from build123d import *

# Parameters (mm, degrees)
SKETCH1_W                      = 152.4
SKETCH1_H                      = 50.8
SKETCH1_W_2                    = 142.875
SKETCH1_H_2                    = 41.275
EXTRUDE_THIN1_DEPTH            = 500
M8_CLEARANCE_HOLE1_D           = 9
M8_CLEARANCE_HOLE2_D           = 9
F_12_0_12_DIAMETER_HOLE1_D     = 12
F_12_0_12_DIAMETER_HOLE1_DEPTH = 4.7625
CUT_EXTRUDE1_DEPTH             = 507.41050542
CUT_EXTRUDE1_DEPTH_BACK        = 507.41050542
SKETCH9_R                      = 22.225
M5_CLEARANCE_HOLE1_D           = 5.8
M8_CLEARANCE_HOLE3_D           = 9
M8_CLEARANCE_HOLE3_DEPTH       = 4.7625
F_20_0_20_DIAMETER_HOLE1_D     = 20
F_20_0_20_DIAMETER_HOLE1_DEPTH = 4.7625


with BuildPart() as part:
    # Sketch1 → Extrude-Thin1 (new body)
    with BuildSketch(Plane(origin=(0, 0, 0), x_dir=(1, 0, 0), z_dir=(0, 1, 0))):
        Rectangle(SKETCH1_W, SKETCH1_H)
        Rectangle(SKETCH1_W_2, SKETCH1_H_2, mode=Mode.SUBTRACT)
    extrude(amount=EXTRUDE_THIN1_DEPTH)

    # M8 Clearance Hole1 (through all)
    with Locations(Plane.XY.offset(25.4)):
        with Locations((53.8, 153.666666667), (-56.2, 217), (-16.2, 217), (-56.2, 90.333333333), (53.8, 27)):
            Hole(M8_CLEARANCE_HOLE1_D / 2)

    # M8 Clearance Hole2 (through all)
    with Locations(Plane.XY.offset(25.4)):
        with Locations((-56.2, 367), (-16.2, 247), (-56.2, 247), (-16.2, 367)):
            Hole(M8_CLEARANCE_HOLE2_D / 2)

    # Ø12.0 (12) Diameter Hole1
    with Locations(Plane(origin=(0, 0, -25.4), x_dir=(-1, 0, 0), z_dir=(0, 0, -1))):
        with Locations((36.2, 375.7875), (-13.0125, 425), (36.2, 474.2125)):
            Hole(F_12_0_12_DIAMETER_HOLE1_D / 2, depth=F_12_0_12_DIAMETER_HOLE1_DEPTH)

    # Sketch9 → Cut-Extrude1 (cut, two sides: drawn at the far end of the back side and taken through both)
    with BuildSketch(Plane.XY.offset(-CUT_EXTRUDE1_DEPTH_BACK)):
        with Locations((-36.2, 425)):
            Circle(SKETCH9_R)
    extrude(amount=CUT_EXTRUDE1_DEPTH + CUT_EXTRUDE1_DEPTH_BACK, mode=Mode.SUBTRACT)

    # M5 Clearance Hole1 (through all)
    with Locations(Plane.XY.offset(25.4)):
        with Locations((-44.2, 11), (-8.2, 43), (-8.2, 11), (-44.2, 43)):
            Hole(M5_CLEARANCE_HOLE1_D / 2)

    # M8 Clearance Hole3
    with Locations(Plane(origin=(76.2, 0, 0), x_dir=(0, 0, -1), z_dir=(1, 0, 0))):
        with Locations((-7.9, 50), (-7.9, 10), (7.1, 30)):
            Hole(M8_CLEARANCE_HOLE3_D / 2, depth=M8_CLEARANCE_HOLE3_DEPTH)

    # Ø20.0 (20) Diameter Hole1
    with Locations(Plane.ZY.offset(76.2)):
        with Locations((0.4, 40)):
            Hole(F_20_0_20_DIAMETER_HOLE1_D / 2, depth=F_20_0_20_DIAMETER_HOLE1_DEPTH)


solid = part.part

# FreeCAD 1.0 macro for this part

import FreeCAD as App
import Part
import Sketcher
Q = App.Units.Quantity


def add_polygon(sketch, points):
    """Adds a closed chain of lines whose ends are joined by coincident constraints."""
    first, n = sketch.GeometryCount, len(points)
    for a, b in zip(points, points[1:] + points[:1]):
        sketch.addGeometry(Part.LineSegment(App.Vector(*a, 0), App.Vector(*b, 0)), False)
    for i in range(n):
        sketch.addConstraint(Sketcher.Constraint("Coincident", first + i, 2, first + (i + 1) % n, 1))

doc = App.newDocument("Part")
body = doc.addObject("PartDesign::Body", "Body")

# Sketch on XZ plane
sketch1 = body.newObject("Sketcher::SketchObject", "Sketch")
sketch1.AttachmentSupport = (doc.getObject("XZ_Plane"), [""])
sketch1.MapMode = "FlatFace"
add_polygon(sketch1, [(-76.2, -25.4), (-76.2, 25.4), (76.2, 25.4), (76.2, -25.4)])  # lines 0-3
add_polygon(sketch1, [(71.4375, 20.6375), (-71.4375, 20.6375), (-71.4375, -20.6375), (71.4375, -20.6375)])  # lines 4-7
sketch1.addConstraint(Sketcher.Constraint("Vertical", 0))
sketch1.addConstraint(Sketcher.Constraint("Horizontal", 1))
sketch1.addConstraint(Sketcher.Constraint("Vertical", 2))
sketch1.addConstraint(Sketcher.Constraint("Horizontal", 3))
sketch1.addConstraint(Sketcher.Constraint("Horizontal", 4))
sketch1.addConstraint(Sketcher.Constraint("Vertical", 5))
sketch1.addConstraint(Sketcher.Constraint("Horizontal", 6))
sketch1.addConstraint(Sketcher.Constraint("Vertical", 7))
sketch1.addConstraint(Sketcher.Constraint("Symmetric", 0, 2, 2, 2, -1, 1))
sketch1.addConstraint(Sketcher.Constraint("Symmetric", 4, 2, 6, 2, -1, 1))
sketch1.addConstraint(Sketcher.Constraint("DistanceX", 1, 1, 1, 2, Q("6 in")))
sketch1.addConstraint(Sketcher.Constraint("DistanceY", 0, 1, 0, 2, Q("2 in")))
sketch1.addConstraint(Sketcher.Constraint("DistanceX", 4, 2, 4, 1, Q("5.625 in")))
sketch1.addConstraint(Sketcher.Constraint("DistanceY", 5, 2, 5, 1, Q("1.625 in")))
pad1 = body.newObject("PartDesign::Pad", "Pad")
pad1.Profile = sketch1
pad1.Length = 500
pad1.Reversed = True

# Sketch on XY plane
sketch2 = body.newObject("Sketcher::SketchObject", "Sketch001")
sketch2.AttachmentSupport = (doc.getObject("XY_Plane"), [""])
sketch2.MapMode = "FlatFace"
sketch2.AttachmentOffset = App.Placement(App.Vector(0, 0, 1 * 25.4), App.Rotation())
sketch2.addGeometry(Part.Circle(App.Vector(53.8, 153.666667, 0), App.Vector(0, 0, 1), 4.5), False)
sketch2.addGeometry(Part.Circle(App.Vector(-56.2, 217, 0), App.Vector(0, 0, 1), 4.5), False)
sketch2.addGeometry(Part.Circle(App.Vector(-16.2, 217, 0), App.Vector(0, 0, 1), 4.5), False)
sketch2.addGeometry(Part.Circle(App.Vector(-56.2, 90.333333, 0), App.Vector(0, 0, 1), 4.5), False)
sketch2.addGeometry(Part.Circle(App.Vector(53.8, 27, 0), App.Vector(0, 0, 1), 4.5), False)
sketch2.addConstraint(Sketcher.Constraint("Equal", 0, 1))
sketch2.addConstraint(Sketcher.Constraint("Equal", 1, 2))
sketch2.addConstraint(Sketcher.Constraint("Equal", 2, 3))
sketch2.addConstraint(Sketcher.Constraint("Equal", 3, 4))
sketch2.addConstraint(Sketcher.Constraint("Horizontal", 1, 3, 2, 3))
sketch2.addConstraint(Sketcher.Constraint("Vertical", 1, 3, 3, 3))
sketch2.addConstraint(Sketcher.Constraint("Vertical", 0, 3, 4, 3))
sketch2.addConstraint(Sketcher.Constraint("Diameter", 0, 9.0))
sketch2.addConstraint(Sketcher.Constraint("DistanceX", -1, 1, 0, 3, 53.8))
sketch2.addConstraint(Sketcher.Constraint("DistanceX", 1, 3, -1, 1, 56.2))
sketch2.addConstraint(Sketcher.Constraint("DistanceY", -1, 1, 1, 3, 217.0))
sketch2.addConstraint(Sketcher.Constraint("DistanceX", 2, 3, -1, 1, 16.2))
sketch2.addConstraint(Sketcher.Constraint("DistanceY", -1, 1, 4, 3, 27.0))
sketch2.addConstraint(Sketcher.Constraint("DistanceY", -1, 1, 0, 3, 153.666667))
sketch2.addConstraint(Sketcher.Constraint("DistanceY", -1, 1, 3, 3, 90.333333))
doc.recompute()
hole = body.newObject("PartDesign::Hole", "Hole")
hole.Profile = sketch2
hole.ThreadType = "None"
hole.Diameter = 9
hole.DepthType = "ThroughAll"

# Sketch on XY plane
sketch3 = body.newObject("Sketcher::SketchObject", "Sketch002")
sketch3.AttachmentSupport = (doc.getObject("XY_Plane"), [""])
sketch3.MapMode = "FlatFace"
sketch3.AttachmentOffset = App.Placement(App.Vector(0, 0, 1 * 25.4), App.Rotation())
sketch3.addGeometry(Part.Circle(App.Vector(-56.2, 367, 0), App.Vector(0, 0, 1), 4.5), False)
sketch3.addGeometry(Part.Circle(App.Vector(-16.2, 247, 0), App.Vector(0, 0, 1), 4.5), False)
sketch3.addGeometry(Part.Circle(App.Vector(-56.2, 247, 0), App.Vector(0, 0, 1), 4.5), False)
sketch3.addGeometry(Part.Circle(App.Vector(-16.2, 367, 0), App.Vector(0, 0, 1), 4.5), False)
sketch3.addConstraint(Sketcher.Constraint("Equal", 0, 1))
sketch3.addConstraint(Sketcher.Constraint("Equal", 1, 2))
sketch3.addConstraint(Sketcher.Constraint("Equal", 2, 3))
sketch3.addConstraint(Sketcher.Constraint("Horizontal", 1, 3, 2, 3))
sketch3.addConstraint(Sketcher.Constraint("Horizontal", 0, 3, 3, 3))
sketch3.addConstraint(Sketcher.Constraint("Vertical", 0, 3, 2, 3))
sketch3.addConstraint(Sketcher.Constraint("Vertical", 1, 3, 3, 3))
sketch3.addConstraint(Sketcher.Constraint("Diameter", 0, 9.0))
sketch3.addConstraint(Sketcher.Constraint("DistanceX", 0, 3, -1, 1, 56.2))
sketch3.addConstraint(Sketcher.Constraint("DistanceY", -1, 1, 0, 3, 367.0))
sketch3.addConstraint(Sketcher.Constraint("DistanceX", 1, 3, -1, 1, 16.2))
sketch3.addConstraint(Sketcher.Constraint("DistanceY", -1, 1, 1, 3, 247.0))
doc.recompute()
hole2 = body.newObject("PartDesign::Hole", "Hole001")
hole2.Profile = sketch3
hole2.ThreadType = "None"
hole2.Diameter = 9
hole2.DepthType = "ThroughAll"

# Sketch on XY plane
sketch4 = body.newObject("Sketcher::SketchObject", "Sketch003")
sketch4.AttachmentSupport = (doc.getObject("XY_Plane"), [""])
sketch4.MapMode = "FlatFace"
sketch4.AttachmentOffset = App.Placement(App.Vector(0, 0, -1 * 25.4), App.Rotation())
sketch4.addGeometry(Part.Circle(App.Vector(-36.2, 375.7875, 0), App.Vector(0, 0, 1), 6), False)
sketch4.addGeometry(Part.Circle(App.Vector(13.0125, 425, 0), App.Vector(0, 0, 1), 6), False)
sketch4.addGeometry(Part.Circle(App.Vector(-36.2, 474.2125, 0), App.Vector(0, 0, 1), 6), False)
sketch4.addConstraint(Sketcher.Constraint("Equal", 0, 1))
sketch4.addConstraint(Sketcher.Constraint("Equal", 1, 2))
sketch4.addConstraint(Sketcher.Constraint("Vertical", 0, 3, 2, 3))
sketch4.addConstraint(Sketcher.Constraint("Diameter", 0, 12.0))
sketch4.addConstraint(Sketcher.Constraint("DistanceX", 0, 3, 1, 3, Q("1.9375 in")))
sketch4.addConstraint(Sketcher.Constraint("DistanceY", 0, 3, 1, 3, Q("1.9375 in")))
sketch4.addConstraint(Sketcher.Constraint("DistanceY", 1, 3, 2, 3, Q("1.9375 in")))
sketch4.addConstraint(Sketcher.Constraint("DistanceX", 0, 3, -1, 1, 36.2))
sketch4.addConstraint(Sketcher.Constraint("DistanceY", -1, 1, 0, 3, 375.7875))
doc.recompute()
hole3 = body.newObject("PartDesign::Hole", "Hole002")
hole3.Profile = sketch4
hole3.ThreadType = "None"
hole3.Diameter = 12
hole3.DepthType = "Dimension"
hole3.Depth = Q("0.1875 in")
hole3.DrillPoint = "Flat"
hole3.Reversed = True

# Sketch on XY plane
sketch5 = body.newObject("Sketcher::SketchObject", "Sketch004")
sketch5.AttachmentSupport = (doc.getObject("XY_Plane"), [""])
sketch5.MapMode = "FlatFace"
sketch5.addGeometry(Part.Circle(App.Vector(-36.2, 425, 0), App.Vector(0, 0, 1), 22.225), False)
sketch5.addConstraint(Sketcher.Constraint("Diameter", 0, Q("1.75 in")))
sketch5.addConstraint(Sketcher.Constraint("DistanceX", 0, 3, -1, 1, 36.2))
sketch5.addConstraint(Sketcher.Constraint("DistanceY", -1, 1, 0, 3, 425.0))
pocket1 = body.newObject("PartDesign::Pocket", "Pocket")
pocket1.Profile = sketch5
pocket1.Type = "ThroughAll"
pocket1.Midplane = True

# Sketch on XY plane
sketch6 = body.newObject("Sketcher::SketchObject", "Sketch005")
sketch6.AttachmentSupport = (doc.getObject("XY_Plane"), [""])
sketch6.MapMode = "FlatFace"
sketch6.AttachmentOffset = App.Placement(App.Vector(0, 0, 1 * 25.4), App.Rotation())
sketch6.addGeometry(Part.Circle(App.Vector(-44.2, 11, 0), App.Vector(0, 0, 1), 2.9), False)
sketch6.addGeometry(Part.Circle(App.Vector(-8.2, 43, 0), App.Vector(0, 0, 1), 2.9), False)
sketch6.addGeometry(Part.Circle(App.Vector(-8.2, 11, 0), App.Vector(0, 0, 1), 2.9), False)
sketch6.addGeometry(Part.Circle(App.Vector(-44.2, 43, 0), App.Vector(0, 0, 1), 2.9), False)
sketch6.addConstraint(Sketcher.Constraint("Equal", 0, 1))
sketch6.addConstraint(Sketcher.Constraint("Equal", 1, 2))
sketch6.addConstraint(Sketcher.Constraint("Equal", 2, 3))
sketch6.addConstraint(Sketcher.Constraint("Horizontal", 0, 3, 2, 3))
sketch6.addConstraint(Sketcher.Constraint("Horizontal", 1, 3, 3, 3))
sketch6.addConstraint(Sketcher.Constraint("Vertical", 1, 3, 2, 3))
sketch6.addConstraint(Sketcher.Constraint("Vertical", 0, 3, 3, 3))
sketch6.addConstraint(Sketcher.Constraint("Diameter", 0, 5.8))
sketch6.addConstraint(Sketcher.Constraint("DistanceX", 0, 3, -1, 1, 44.2))
sketch6.addConstraint(Sketcher.Constraint("DistanceY", -1, 1, 0, 3, 11.0))
sketch6.addConstraint(Sketcher.Constraint("DistanceX", 1, 3, -1, 1, 8.2))
sketch6.addConstraint(Sketcher.Constraint("DistanceY", -1, 1, 1, 3, 43.0))
doc.recompute()
hole4 = body.newObject("PartDesign::Hole", "Hole003")
hole4.Profile = sketch6
hole4.ThreadType = "None"
hole4.Diameter = 5.8
hole4.DepthType = "ThroughAll"

# Sketch on YZ plane
sketch7 = body.newObject("Sketcher::SketchObject", "Sketch006")
sketch7.AttachmentSupport = (doc.getObject("YZ_Plane"), [""])
sketch7.MapMode = "FlatFace"
sketch7.AttachmentOffset = App.Placement(App.Vector(0, 0, 3 * 25.4), App.Rotation())
sketch7.addGeometry(Part.Circle(App.Vector(50, 7.9, 0), App.Vector(0, 0, 1), 4.5), False)
sketch7.addGeometry(Part.Circle(App.Vector(10, 7.9, 0), App.Vector(0, 0, 1), 4.5), False)
sketch7.addGeometry(Part.Circle(App.Vector(30, -7.1, 0), App.Vector(0, 0, 1), 4.5), False)
sketch7.addConstraint(Sketcher.Constraint("Equal", 0, 1))
sketch7.addConstraint(Sketcher.Constraint("Equal", 1, 2))
sketch7.addConstraint(Sketcher.Constraint("Horizontal", 0, 3, 1, 3))
sketch7.addConstraint(Sketcher.Constraint("Diameter", 0, 9.0))
sketch7.addConstraint(Sketcher.Constraint("DistanceX", -1, 1, 0, 3, 50.0))
sketch7.addConstraint(Sketcher.Constraint("DistanceY", -1, 1, 0, 3, 7.9))
sketch7.addConstraint(Sketcher.Constraint("DistanceX", -1, 1, 1, 3, 10.0))
sketch7.addConstraint(Sketcher.Constraint("DistanceX", -1, 1, 2, 3, 30.0))
sketch7.addConstraint(Sketcher.Constraint("DistanceY", 2, 3, -1, 1, 7.1))
doc.recompute()
hole5 = body.newObject("PartDesign::Hole", "Hole004")
hole5.Profile = sketch7
hole5.ThreadType = "None"
hole5.Diameter = 9
hole5.DepthType = "Dimension"
hole5.Depth = Q("0.1875 in")
hole5.DrillPoint = "Flat"

# Sketch on YZ plane
sketch8 = body.newObject("Sketcher::SketchObject", "Sketch007")
sketch8.AttachmentSupport = (doc.getObject("YZ_Plane"), [""])
sketch8.MapMode = "FlatFace"
sketch8.AttachmentOffset = App.Placement(App.Vector(0, 0, -3 * 25.4), App.Rotation())
sketch8.addGeometry(Part.Circle(App.Vector(40, 0.4, 0), App.Vector(0, 0, 1), 10), False)
sketch8.addConstraint(Sketcher.Constraint("Diameter", 0, 20.0))
sketch8.addConstraint(Sketcher.Constraint("DistanceX", -1, 1, 0, 3, 40.0))
sketch8.addConstraint(Sketcher.Constraint("DistanceY", -1, 1, 0, 3, 0.4))
doc.recompute()
hole6 = body.newObject("PartDesign::Hole", "Hole005")
hole6.Profile = sketch8
hole6.ThreadType = "None"
hole6.Diameter = 20
hole6.DepthType = "Dimension"
hole6.Depth = Q("0.1875 in")
hole6.DrillPoint = "Flat"
hole6.Reversed = True

doc.recompute()
